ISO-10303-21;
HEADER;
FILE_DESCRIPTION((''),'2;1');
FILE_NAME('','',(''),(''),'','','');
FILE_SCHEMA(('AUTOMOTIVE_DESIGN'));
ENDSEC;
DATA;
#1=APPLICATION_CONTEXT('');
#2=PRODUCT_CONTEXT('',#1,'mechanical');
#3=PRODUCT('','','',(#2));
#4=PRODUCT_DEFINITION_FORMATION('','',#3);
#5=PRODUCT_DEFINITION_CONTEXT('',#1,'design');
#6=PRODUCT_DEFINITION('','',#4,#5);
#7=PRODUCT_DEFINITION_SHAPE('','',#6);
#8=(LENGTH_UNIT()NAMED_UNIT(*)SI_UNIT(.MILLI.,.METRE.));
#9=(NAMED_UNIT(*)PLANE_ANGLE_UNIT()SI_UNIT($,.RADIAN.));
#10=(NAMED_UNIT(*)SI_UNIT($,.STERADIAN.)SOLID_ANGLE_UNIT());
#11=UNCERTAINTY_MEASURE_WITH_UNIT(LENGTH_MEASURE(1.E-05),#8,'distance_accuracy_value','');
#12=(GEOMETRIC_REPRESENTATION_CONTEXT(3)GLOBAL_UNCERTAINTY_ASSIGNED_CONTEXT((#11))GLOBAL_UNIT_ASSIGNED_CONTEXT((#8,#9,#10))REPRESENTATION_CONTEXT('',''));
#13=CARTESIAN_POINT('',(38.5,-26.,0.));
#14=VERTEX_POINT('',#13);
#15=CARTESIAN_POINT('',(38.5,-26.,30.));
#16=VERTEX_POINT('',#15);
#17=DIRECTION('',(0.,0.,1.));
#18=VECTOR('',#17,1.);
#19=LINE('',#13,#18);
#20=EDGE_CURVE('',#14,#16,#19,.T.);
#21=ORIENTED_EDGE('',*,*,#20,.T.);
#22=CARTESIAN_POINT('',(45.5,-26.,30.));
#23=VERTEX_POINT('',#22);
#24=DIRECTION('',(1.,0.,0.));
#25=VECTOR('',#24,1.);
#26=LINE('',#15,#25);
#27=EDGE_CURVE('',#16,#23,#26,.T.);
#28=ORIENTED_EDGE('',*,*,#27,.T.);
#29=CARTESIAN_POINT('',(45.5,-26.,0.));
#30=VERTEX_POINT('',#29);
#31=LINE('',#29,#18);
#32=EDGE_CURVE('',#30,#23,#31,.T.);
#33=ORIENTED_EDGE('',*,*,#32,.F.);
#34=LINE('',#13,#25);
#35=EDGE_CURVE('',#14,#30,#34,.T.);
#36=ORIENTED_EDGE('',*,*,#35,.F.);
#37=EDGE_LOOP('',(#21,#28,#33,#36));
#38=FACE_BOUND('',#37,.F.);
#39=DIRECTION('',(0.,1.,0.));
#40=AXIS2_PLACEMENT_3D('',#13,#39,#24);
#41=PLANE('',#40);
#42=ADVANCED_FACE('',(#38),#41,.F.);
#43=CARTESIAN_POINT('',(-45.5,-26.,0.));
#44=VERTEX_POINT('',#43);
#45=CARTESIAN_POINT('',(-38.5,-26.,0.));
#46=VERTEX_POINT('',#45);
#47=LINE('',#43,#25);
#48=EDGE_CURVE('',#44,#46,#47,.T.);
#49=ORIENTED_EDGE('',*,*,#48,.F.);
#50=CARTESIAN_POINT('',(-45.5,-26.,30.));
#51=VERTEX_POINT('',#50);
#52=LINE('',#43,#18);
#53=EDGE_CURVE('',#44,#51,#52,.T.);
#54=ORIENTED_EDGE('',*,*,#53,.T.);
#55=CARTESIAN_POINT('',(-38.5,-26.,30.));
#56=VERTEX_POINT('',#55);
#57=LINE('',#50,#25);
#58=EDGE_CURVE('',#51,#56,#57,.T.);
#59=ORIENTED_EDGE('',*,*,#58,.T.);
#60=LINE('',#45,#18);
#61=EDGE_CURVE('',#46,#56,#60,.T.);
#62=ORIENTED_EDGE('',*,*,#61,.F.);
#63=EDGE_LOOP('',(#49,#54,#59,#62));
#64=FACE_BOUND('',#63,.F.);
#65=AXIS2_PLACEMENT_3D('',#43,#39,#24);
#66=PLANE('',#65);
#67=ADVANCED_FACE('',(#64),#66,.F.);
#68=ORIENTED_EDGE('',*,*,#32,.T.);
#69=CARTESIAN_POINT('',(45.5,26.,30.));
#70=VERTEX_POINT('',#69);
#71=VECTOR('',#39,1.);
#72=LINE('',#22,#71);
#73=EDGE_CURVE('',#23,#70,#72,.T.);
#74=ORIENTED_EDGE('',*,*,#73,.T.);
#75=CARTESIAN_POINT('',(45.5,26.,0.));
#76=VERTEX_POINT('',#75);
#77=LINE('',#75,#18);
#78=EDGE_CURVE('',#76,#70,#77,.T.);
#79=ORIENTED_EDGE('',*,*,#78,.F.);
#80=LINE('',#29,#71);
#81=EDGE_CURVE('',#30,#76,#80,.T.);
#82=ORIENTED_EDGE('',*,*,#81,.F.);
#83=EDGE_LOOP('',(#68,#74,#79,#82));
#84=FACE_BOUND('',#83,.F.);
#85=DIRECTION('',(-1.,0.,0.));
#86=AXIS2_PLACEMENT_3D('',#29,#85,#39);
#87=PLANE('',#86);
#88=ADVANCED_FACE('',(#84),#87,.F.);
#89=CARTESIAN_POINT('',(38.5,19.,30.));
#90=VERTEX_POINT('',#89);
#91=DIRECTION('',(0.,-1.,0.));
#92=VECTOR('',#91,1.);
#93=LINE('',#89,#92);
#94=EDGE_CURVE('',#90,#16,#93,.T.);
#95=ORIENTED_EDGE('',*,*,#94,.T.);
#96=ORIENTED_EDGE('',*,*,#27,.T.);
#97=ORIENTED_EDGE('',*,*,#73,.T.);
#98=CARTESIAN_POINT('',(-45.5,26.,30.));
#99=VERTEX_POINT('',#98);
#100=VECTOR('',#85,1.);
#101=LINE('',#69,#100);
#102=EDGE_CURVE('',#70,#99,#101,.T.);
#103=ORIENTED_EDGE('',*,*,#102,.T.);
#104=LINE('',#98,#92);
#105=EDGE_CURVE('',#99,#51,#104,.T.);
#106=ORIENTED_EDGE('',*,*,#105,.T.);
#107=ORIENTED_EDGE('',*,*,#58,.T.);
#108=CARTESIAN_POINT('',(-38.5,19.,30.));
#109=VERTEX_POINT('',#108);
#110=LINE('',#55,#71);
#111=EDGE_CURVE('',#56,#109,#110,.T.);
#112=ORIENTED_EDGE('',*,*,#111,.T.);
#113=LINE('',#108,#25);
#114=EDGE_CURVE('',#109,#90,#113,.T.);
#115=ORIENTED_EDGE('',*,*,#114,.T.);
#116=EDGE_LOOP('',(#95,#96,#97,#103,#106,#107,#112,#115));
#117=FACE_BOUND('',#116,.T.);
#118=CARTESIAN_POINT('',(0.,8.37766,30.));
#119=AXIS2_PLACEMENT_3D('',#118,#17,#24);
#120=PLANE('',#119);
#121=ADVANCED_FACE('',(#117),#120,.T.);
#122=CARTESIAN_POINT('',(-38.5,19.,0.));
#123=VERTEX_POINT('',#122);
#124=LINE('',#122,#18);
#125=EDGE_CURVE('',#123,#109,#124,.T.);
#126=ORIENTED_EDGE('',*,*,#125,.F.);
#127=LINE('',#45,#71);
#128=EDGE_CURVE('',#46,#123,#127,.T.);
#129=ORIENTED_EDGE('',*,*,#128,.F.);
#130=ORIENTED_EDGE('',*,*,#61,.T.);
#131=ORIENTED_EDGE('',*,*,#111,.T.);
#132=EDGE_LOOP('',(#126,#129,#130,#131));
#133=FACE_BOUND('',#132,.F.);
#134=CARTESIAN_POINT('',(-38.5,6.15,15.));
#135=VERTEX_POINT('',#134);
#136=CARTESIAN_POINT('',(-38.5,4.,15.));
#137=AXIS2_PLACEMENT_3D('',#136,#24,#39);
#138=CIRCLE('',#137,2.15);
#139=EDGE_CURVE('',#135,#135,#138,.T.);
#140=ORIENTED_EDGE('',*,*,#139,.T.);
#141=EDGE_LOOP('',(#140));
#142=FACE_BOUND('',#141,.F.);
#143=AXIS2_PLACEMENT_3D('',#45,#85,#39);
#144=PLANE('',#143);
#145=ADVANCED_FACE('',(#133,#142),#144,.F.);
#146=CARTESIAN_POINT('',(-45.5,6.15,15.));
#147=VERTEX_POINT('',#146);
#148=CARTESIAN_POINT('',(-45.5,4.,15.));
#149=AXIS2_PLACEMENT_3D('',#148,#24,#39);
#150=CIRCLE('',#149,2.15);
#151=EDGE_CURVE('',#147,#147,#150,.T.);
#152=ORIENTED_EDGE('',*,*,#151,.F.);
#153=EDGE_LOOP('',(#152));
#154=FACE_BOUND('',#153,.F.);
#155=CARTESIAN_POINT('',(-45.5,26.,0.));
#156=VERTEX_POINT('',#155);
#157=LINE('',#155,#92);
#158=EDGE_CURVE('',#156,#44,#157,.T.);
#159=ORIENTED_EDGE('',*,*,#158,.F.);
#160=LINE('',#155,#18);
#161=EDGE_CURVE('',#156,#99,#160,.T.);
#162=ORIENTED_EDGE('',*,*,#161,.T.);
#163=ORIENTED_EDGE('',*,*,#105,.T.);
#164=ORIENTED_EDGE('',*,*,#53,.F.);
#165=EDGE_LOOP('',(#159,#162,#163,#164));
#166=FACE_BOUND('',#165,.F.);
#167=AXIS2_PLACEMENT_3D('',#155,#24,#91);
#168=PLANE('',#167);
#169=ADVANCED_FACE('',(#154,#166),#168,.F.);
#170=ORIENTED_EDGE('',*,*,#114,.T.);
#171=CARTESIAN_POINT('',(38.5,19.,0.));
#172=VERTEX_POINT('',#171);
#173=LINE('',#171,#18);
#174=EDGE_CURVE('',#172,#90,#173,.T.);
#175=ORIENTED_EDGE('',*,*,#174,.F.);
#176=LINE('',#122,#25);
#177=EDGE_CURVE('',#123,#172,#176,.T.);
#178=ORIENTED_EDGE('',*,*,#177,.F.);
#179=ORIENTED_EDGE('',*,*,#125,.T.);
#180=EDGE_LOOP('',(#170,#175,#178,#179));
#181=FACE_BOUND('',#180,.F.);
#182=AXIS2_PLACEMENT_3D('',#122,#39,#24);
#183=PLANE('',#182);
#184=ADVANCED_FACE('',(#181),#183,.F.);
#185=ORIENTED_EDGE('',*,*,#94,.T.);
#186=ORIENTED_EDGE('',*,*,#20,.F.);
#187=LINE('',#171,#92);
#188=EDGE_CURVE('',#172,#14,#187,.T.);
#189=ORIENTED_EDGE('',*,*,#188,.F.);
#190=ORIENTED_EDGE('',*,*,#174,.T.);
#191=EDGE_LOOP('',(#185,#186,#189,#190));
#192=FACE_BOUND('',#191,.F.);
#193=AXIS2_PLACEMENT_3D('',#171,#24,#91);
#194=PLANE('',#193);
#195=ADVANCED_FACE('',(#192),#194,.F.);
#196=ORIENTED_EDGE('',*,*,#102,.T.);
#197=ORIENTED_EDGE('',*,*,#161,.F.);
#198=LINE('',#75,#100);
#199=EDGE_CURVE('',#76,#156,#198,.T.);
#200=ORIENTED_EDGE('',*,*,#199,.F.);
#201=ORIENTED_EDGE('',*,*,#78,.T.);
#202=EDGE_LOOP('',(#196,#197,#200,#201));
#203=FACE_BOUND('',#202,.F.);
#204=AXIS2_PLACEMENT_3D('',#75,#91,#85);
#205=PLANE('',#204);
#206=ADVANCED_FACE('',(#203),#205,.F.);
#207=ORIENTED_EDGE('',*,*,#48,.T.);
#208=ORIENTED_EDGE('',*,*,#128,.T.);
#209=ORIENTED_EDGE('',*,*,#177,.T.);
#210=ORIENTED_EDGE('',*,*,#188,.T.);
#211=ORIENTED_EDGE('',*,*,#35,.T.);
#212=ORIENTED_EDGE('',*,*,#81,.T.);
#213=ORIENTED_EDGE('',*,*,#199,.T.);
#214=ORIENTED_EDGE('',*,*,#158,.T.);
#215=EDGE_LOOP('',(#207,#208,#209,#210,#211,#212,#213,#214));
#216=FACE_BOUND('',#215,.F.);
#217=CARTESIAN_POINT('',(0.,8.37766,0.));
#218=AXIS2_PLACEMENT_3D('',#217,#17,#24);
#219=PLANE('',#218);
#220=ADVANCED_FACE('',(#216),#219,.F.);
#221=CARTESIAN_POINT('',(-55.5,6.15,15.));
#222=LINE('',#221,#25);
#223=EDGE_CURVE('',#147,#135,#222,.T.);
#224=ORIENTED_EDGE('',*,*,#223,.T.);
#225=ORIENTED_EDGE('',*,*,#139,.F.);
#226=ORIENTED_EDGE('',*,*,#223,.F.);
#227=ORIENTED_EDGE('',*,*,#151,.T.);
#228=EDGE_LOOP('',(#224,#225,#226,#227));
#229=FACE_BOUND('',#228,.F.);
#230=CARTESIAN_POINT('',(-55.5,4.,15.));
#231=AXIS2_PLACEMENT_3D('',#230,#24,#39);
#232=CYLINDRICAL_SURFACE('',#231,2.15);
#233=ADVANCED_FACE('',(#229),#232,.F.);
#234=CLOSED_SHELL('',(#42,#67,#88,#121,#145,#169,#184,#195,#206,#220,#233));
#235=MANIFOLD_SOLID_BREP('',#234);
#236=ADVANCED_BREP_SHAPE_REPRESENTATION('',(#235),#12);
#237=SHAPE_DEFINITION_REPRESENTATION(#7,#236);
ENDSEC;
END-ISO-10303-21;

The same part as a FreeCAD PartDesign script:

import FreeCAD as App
import Part
import Sketcher

V = App.Vector
Q = App.Units.Quantity


def add_polygon(sketch, points):
    """Adds a closed chain of lines whose ends are joined by coincident constraints."""
    first, n = sketch.GeometryCount, len(points)
    for a, b in zip(points, points[1:] + points[:1]):
        sketch.addGeometry(Part.LineSegment(App.Vector(*a, 0), App.Vector(*b, 0)), False)
    for i in range(n):
        sketch.addConstraint(Sketcher.Constraint("Coincident", first + i, 2, first + (i + 1) % n, 1))

doc = App.newDocument("Part")
body = doc.addObject("PartDesign::Body", "Body")

sketch1 = body.newObject("Sketcher::SketchObject", "Sketch")
sketch1.AttachmentSupport = (doc.getObject("XY_Plane"), [""])
sketch1.MapMode = "FlatFace"
add_polygon(sketch1, [(45.5, 26), (-45.5, 26), (-45.5, -26), (-38.5, -26), (-38.5, 19), (38.5, 19), (38.5, -26), (45.5, -26)])
sketch1.addConstraint(Sketcher.Constraint("Horizontal", 0))
sketch1.addConstraint(Sketcher.Constraint("Vertical", 1))
sketch1.addConstraint(Sketcher.Constraint("Horizontal", 2))
sketch1.addConstraint(Sketcher.Constraint("Vertical", 3))
sketch1.addConstraint(Sketcher.Constraint("Horizontal", 4))
sketch1.addConstraint(Sketcher.Constraint("Vertical", 5))
sketch1.addConstraint(Sketcher.Constraint("Horizontal", 6))
sketch1.addConstraint(Sketcher.Constraint("Vertical", 7))
sketch1.addConstraint(Sketcher.Constraint("Symmetric", 0, 2, 6, 2, -1, 1))
sketch1.addConstraint(Sketcher.Constraint("Symmetric", 2, 2, 5, 2, -2))
sketch1.addConstraint(Sketcher.Constraint("DistanceX", 0, 2, 0, 1, Q("91 mm")))
sketch1.addConstraint(Sketcher.Constraint("DistanceX", 2, 1, 2, 2, Q("7 mm")))
sketch1.addConstraint(Sketcher.Constraint("DistanceY", 1, 2, 1, 1, Q("52 mm")))
sketch1.addConstraint(Sketcher.Constraint("DistanceY", 3, 1, 3, 2, Q("45 mm")))
pad1 = body.newObject("PartDesign::Pad", "Pad")
pad1.Profile = sketch1
pad1.Length = 30

sketch2 = body.newObject("Sketcher::SketchObject", "Sketch001")
sketch2.AttachmentSupport = (doc.getObject("YZ_Plane"), [""])
sketch2.MapMode = "FlatFace"
sketch2.AttachmentOffset = App.Placement(V(0, 0, -45.5), App.Rotation())
sketch2.addGeometry(Part.Circle(V(4, 15, 0), V(0, 0, 1), 2.15), False)
sketch2.addConstraint(Sketcher.Constraint("Diameter", 0, Q("4.3 mm")))
sketch2.addConstraint(Sketcher.Constraint("DistanceX", -1, 1, 0, 3, Q("4 mm")))
sketch2.addConstraint(Sketcher.Constraint("DistanceY", -1, 1, 0, 3, Q("15 mm")))
doc.recompute()
hole = body.newObject("PartDesign::Hole", "Hole")
hole.Profile = sketch2
hole.ThreadType = "None"
hole.Diameter = 4.3
hole.DepthType = "Dimension"
hole.Depth = 10
hole.DrillPoint = "Flat"
hole.Reversed = True

doc.recompute()
